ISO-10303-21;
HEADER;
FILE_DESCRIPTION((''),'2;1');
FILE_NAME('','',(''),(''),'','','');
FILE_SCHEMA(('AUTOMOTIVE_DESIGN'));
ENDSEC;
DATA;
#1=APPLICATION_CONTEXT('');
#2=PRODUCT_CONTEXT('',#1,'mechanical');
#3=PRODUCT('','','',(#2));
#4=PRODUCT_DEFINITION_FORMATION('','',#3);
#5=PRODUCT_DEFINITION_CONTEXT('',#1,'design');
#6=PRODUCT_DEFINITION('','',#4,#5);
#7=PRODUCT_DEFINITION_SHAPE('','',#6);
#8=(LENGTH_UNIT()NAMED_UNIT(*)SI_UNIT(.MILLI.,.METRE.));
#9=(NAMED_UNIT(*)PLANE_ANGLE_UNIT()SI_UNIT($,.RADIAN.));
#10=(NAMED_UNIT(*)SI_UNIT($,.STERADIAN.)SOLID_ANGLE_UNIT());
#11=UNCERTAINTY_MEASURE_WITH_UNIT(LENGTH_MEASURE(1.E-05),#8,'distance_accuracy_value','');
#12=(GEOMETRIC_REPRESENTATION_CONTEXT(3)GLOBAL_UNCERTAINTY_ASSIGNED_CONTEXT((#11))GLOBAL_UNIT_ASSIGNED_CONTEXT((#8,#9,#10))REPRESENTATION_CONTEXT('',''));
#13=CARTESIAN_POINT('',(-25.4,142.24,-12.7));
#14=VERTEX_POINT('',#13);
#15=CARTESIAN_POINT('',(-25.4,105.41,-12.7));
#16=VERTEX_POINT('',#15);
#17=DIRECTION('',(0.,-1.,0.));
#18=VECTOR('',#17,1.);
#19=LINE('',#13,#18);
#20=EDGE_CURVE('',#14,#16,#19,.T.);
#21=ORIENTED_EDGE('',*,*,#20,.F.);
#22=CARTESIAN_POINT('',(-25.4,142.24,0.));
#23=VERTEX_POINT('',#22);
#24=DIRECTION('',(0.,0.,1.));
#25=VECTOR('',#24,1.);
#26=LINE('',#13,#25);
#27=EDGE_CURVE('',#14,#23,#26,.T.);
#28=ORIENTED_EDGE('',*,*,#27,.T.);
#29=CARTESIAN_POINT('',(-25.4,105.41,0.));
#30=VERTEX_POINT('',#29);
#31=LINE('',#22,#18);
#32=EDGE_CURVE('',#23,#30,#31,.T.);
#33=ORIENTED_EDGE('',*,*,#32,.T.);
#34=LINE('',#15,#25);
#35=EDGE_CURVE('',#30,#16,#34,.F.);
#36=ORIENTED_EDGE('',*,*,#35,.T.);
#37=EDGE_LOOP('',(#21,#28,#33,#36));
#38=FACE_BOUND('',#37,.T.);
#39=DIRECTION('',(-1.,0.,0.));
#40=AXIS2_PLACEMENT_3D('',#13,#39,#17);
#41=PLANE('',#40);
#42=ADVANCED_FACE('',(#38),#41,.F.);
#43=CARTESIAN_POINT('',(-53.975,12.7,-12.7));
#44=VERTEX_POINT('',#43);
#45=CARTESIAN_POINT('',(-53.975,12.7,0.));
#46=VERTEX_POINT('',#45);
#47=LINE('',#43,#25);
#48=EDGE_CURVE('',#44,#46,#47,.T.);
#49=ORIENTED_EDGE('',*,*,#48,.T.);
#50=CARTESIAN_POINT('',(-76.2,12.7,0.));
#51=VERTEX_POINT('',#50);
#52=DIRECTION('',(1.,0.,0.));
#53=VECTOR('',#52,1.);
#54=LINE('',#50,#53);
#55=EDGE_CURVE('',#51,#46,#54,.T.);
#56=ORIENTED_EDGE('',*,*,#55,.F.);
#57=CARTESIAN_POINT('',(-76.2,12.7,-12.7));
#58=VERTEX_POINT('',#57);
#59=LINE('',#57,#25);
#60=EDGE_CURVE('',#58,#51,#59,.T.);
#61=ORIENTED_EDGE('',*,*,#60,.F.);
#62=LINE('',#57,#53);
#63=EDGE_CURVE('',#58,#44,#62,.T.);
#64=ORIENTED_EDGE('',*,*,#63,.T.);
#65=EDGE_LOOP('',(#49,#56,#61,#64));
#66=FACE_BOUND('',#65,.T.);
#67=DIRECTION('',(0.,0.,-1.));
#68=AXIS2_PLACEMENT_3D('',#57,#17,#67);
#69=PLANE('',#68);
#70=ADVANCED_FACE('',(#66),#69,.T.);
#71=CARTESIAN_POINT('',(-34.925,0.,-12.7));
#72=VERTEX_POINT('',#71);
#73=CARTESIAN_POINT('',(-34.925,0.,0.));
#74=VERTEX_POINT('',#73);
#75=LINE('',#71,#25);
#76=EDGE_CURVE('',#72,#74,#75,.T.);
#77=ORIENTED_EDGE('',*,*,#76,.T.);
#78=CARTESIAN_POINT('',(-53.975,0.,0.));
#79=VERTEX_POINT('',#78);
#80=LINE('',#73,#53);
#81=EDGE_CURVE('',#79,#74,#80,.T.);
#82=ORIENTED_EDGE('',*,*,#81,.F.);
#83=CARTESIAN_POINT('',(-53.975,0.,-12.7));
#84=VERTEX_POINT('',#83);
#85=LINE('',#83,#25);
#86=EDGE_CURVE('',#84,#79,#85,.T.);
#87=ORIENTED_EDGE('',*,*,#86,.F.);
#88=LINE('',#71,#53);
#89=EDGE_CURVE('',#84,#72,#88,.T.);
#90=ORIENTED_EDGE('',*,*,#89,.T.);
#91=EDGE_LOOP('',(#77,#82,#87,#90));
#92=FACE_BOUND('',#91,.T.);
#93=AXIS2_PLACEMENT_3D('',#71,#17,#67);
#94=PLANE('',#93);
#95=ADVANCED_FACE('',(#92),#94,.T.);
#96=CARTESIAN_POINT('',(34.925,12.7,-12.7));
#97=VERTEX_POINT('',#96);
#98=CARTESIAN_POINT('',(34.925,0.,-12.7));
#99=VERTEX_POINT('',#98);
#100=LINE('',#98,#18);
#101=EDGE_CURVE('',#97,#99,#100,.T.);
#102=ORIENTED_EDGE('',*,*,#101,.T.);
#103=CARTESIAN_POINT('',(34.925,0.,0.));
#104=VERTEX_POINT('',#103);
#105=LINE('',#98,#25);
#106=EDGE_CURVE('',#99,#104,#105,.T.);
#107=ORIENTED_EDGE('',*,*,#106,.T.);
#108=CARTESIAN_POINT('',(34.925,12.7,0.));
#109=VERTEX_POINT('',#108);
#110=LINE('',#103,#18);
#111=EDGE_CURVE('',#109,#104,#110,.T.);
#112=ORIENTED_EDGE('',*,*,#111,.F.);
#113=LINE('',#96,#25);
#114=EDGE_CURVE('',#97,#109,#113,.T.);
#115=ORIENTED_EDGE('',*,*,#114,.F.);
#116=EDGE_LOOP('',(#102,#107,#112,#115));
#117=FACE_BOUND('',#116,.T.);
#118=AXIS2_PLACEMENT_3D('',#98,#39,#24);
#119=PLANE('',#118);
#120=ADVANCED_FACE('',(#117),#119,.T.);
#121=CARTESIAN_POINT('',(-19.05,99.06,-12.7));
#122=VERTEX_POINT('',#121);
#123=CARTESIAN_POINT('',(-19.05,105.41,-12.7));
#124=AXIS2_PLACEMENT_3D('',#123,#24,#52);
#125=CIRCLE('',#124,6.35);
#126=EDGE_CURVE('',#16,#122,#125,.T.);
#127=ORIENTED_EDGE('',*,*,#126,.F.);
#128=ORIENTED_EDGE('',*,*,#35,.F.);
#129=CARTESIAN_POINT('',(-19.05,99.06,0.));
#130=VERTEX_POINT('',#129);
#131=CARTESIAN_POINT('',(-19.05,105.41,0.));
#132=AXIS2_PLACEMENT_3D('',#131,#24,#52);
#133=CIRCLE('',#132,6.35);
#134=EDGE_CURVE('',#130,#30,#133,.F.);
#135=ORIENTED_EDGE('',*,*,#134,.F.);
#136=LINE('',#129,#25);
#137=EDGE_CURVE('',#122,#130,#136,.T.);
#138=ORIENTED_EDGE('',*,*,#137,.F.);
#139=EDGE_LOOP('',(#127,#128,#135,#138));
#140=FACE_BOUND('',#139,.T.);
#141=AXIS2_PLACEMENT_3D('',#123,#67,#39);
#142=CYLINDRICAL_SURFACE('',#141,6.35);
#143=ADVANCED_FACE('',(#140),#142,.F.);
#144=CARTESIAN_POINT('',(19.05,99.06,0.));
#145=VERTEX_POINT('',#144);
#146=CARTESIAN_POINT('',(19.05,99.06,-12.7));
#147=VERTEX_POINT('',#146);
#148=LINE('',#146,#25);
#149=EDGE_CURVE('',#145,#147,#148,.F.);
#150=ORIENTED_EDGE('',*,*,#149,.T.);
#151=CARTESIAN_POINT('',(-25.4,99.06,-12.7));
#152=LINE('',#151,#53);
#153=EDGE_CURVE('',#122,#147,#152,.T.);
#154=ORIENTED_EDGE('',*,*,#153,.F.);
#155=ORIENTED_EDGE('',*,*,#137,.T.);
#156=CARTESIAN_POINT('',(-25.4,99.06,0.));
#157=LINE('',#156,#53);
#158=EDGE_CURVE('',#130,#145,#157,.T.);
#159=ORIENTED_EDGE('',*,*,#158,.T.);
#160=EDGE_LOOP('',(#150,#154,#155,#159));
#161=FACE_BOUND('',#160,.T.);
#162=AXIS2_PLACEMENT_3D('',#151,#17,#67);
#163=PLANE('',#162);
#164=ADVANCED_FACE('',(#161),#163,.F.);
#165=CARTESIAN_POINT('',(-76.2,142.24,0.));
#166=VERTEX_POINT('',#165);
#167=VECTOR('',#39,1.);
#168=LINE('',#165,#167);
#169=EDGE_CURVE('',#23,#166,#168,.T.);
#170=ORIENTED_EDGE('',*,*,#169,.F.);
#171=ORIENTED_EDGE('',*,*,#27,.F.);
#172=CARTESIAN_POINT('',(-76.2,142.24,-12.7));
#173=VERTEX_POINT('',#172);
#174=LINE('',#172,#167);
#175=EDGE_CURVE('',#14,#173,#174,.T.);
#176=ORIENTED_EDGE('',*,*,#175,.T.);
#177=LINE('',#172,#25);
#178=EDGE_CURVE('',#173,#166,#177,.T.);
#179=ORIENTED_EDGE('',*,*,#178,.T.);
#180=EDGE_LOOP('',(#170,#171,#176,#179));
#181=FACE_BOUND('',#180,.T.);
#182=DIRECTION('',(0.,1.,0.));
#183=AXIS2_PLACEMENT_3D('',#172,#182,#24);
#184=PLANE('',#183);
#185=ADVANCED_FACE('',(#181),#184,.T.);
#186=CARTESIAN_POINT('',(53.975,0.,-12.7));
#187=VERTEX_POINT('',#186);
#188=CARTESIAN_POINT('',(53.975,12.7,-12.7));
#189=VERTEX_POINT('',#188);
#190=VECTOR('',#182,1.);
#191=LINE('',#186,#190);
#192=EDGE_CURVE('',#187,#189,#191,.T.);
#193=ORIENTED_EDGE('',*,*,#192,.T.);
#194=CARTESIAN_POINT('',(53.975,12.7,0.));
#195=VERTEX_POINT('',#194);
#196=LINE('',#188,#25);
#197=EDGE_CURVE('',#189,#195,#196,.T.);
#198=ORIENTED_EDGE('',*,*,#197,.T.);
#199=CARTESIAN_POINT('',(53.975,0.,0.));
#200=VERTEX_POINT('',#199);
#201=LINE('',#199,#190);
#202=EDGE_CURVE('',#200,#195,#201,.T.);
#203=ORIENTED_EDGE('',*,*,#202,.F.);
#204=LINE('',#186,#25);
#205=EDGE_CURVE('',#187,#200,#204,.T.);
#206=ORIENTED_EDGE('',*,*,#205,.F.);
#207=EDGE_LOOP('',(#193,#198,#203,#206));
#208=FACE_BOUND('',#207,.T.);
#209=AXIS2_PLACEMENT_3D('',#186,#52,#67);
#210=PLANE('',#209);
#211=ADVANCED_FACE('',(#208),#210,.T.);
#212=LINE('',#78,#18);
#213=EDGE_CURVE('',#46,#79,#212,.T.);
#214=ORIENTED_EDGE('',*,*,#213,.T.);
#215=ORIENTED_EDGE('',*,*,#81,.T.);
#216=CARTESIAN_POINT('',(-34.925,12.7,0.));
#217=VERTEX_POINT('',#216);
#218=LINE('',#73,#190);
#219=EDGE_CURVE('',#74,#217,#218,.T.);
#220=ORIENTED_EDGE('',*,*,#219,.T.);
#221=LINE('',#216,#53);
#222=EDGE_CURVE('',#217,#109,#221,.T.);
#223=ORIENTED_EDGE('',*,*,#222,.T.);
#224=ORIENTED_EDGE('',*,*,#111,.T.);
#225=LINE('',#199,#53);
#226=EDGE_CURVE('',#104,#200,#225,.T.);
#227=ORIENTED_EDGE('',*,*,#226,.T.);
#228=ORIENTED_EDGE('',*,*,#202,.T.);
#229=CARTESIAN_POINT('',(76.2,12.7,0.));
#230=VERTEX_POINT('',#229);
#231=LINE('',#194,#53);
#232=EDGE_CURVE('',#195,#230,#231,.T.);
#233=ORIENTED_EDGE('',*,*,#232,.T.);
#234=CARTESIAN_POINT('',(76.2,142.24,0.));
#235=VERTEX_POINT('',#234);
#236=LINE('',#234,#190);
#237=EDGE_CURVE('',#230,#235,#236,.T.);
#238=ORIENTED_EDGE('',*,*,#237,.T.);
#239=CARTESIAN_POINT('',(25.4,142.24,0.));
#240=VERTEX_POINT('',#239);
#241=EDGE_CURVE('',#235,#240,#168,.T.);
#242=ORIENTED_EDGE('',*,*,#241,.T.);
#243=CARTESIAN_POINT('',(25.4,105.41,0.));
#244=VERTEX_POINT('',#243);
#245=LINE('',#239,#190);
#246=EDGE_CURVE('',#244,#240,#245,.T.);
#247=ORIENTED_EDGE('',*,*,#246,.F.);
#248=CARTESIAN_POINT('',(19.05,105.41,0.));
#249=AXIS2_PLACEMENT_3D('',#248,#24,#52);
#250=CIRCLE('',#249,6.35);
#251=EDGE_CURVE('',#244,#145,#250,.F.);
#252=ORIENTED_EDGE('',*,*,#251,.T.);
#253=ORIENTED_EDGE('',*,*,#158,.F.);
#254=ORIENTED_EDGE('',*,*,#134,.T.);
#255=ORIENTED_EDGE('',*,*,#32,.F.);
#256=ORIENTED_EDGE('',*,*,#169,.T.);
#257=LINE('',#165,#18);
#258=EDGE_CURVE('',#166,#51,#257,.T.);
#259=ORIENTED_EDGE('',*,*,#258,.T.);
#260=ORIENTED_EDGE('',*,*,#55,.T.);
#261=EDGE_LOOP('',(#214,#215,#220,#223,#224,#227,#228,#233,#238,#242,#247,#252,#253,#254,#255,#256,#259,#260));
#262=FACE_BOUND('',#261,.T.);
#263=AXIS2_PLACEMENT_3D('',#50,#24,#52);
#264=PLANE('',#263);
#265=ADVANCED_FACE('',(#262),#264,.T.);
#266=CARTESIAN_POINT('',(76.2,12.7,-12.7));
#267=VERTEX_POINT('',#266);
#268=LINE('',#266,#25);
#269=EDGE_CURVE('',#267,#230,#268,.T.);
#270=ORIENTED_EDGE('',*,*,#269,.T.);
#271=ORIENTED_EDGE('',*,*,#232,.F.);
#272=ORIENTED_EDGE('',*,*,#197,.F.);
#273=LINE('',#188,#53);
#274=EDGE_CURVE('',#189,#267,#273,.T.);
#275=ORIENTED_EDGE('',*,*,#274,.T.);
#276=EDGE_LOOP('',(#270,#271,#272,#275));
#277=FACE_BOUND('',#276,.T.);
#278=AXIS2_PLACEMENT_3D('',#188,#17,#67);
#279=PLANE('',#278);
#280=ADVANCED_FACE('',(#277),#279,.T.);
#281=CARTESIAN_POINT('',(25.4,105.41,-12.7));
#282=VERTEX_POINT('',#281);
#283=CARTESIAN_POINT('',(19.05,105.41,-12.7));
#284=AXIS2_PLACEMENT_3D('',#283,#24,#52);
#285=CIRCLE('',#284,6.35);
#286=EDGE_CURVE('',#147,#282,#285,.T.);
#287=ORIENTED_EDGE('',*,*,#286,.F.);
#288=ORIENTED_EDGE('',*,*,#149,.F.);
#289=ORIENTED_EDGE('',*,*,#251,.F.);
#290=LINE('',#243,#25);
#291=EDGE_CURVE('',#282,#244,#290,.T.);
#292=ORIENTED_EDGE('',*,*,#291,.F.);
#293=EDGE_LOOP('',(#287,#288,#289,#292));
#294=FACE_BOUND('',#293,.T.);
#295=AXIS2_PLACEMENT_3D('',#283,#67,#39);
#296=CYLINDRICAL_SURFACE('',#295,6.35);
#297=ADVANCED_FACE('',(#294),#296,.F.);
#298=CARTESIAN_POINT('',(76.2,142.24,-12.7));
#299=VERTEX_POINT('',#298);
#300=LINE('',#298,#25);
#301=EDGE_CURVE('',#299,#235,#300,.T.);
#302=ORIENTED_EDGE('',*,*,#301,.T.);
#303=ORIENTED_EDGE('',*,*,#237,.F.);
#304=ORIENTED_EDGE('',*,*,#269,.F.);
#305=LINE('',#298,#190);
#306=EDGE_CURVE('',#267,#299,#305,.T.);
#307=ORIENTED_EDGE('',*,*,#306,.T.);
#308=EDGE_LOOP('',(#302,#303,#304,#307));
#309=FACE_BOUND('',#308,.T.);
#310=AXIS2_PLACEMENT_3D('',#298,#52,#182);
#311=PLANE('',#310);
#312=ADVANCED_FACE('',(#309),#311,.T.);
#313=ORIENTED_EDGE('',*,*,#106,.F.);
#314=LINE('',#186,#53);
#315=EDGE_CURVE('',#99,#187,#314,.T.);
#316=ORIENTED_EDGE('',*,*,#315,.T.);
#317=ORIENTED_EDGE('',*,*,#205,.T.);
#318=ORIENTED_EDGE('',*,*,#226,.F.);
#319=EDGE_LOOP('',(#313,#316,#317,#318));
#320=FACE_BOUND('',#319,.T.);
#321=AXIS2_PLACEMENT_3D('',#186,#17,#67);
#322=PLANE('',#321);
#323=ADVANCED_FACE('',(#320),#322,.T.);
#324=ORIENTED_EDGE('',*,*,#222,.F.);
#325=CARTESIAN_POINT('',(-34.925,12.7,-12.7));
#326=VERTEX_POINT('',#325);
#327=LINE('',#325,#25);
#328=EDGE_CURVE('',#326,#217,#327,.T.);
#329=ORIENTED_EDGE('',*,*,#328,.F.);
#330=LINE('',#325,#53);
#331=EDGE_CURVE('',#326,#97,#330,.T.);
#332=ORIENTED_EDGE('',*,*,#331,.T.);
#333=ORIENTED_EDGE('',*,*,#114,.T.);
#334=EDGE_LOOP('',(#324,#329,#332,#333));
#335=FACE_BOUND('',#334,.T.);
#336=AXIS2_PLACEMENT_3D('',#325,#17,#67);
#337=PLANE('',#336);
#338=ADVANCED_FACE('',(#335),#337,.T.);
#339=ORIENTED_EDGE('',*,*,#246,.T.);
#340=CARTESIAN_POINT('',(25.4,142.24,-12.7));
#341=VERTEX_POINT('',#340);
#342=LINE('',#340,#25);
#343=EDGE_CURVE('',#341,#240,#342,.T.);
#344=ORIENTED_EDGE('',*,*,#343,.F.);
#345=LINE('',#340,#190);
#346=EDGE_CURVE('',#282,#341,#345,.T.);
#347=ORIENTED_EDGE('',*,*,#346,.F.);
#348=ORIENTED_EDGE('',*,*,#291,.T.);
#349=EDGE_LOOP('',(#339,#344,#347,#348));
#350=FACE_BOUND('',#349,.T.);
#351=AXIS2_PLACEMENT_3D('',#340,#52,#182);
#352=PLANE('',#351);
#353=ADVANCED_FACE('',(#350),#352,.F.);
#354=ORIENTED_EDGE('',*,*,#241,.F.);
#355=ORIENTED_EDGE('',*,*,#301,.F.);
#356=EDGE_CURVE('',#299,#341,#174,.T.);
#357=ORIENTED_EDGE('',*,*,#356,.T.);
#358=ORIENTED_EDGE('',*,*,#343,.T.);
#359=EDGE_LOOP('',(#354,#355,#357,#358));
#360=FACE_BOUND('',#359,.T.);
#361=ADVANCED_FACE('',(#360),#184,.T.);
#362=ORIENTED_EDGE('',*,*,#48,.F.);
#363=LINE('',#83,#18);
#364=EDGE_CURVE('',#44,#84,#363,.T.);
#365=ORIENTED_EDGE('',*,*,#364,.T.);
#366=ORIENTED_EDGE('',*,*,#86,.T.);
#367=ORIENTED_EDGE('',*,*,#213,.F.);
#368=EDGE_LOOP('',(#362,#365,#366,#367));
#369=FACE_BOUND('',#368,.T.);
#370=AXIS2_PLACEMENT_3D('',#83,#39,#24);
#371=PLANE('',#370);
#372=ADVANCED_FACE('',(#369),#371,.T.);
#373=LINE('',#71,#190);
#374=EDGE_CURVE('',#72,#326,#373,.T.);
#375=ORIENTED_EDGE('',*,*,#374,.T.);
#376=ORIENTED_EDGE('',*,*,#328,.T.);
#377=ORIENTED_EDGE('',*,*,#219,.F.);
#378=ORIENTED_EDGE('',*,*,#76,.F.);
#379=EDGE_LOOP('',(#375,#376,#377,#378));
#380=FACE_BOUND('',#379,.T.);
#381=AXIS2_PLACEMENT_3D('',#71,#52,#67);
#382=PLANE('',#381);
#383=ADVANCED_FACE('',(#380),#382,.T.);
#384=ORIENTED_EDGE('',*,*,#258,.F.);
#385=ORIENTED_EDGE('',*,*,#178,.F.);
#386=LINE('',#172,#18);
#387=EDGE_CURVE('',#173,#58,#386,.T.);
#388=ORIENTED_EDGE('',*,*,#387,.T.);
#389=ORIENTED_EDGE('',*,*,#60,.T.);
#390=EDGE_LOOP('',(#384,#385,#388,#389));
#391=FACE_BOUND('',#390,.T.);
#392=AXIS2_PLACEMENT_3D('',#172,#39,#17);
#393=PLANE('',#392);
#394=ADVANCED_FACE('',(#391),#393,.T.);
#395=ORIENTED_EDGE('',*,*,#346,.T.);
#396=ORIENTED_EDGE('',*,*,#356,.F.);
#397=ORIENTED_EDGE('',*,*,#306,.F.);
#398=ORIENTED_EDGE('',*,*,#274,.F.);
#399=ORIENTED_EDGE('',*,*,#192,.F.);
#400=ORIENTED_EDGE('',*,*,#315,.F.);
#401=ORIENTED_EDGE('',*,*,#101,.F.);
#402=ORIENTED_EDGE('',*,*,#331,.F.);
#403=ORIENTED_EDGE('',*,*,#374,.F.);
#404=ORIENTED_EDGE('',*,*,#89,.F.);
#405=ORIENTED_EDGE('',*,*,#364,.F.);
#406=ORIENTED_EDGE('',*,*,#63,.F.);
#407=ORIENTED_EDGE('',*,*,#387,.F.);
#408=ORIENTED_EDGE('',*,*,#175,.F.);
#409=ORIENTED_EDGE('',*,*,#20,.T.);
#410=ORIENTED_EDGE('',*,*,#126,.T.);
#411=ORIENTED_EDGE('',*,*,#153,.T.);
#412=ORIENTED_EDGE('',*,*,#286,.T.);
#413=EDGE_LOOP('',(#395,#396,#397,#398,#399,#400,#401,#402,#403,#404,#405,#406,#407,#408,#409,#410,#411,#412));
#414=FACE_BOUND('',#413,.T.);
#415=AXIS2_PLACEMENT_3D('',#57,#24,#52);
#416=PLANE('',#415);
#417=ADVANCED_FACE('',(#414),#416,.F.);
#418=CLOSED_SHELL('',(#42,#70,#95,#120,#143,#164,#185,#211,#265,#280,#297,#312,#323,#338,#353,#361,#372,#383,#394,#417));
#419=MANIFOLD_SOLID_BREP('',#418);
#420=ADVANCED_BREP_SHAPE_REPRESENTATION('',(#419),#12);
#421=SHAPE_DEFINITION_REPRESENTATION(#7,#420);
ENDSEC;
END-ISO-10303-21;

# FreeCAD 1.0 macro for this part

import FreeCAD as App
import Part
import Sketcher
from FreeCAD import Vector
Q = App.Units.Quantity


def edges_at(feature, points):
    """Names of the edges that pass closest to the given points."""
    edges = feature.Shape.Edges
    near = lambda p: min(range(len(edges)), key=lambda i: edges[i].distToShape(Part.Vertex(*p))[0])
    return sorted({f"Edge{near(p) + 1}" for p in points})

doc = App.newDocument("Part")
body = doc.addObject("PartDesign::Body", "Body")

# Sketch on XY plane
sketch1 = body.newObject("Sketcher::SketchObject", "Sketch")
sketch1.AttachmentSupport = (doc.getObject("XY_Plane"), [""])
sketch1.MapMode = "FlatFace"
sketch1.addGeometry([
    Part.LineSegment(Vector(76.2, 142.24, 0), Vector(-76.2, 142.24, 0)),  # 0
    Part.LineSegment(Vector(-76.2, 142.24, 0), Vector(-76.2, 12.7, 0)),  # 1
    Part.LineSegment(Vector(-76.2, 12.7, 0), Vector(-53.975, 12.7, 0)),  # 2
    Part.LineSegment(Vector(-53.975, 12.7, 0), Vector(-53.975, 0, 0)),  # 3
    Part.LineSegment(Vector(-53.975, 0, 0), Vector(-34.925, 0, 0)),  # 4
    Part.LineSegment(Vector(-34.925, 0, 0), Vector(-34.925, 12.7, 0)),  # 5
    Part.LineSegment(Vector(-34.925, 12.7, 0), Vector(34.925, 12.7, 0)),  # 6
    Part.LineSegment(Vector(34.925, 12.7, 0), Vector(34.925, 0, 0)),  # 7
    Part.LineSegment(Vector(34.925, 0, 0), Vector(53.975, 0, 0)),  # 8
    Part.LineSegment(Vector(53.975, 0, 0), Vector(53.975, 12.7, 0)),  # 9
    Part.LineSegment(Vector(53.975, 12.7, 0), Vector(76.2, 12.7, 0)),  # 10
    Part.LineSegment(Vector(76.2, 12.7, 0), Vector(76.2, 142.24, 0)),  # 11
], False)
sketch1.addConstraint([
    Sketcher.Constraint("Coincident", 0, 2, 1, 1),
    Sketcher.Constraint("Coincident", 1, 2, 2, 1),
    Sketcher.Constraint("Coincident", 2, 2, 3, 1),
    Sketcher.Constraint("Coincident", 3, 2, 4, 1),
    Sketcher.Constraint("Coincident", 4, 2, 5, 1),
    Sketcher.Constraint("Coincident", 5, 2, 6, 1),
    Sketcher.Constraint("Coincident", 6, 2, 7, 1),
    Sketcher.Constraint("Coincident", 7, 2, 8, 1),
    Sketcher.Constraint("Coincident", 8, 2, 9, 1),
    Sketcher.Constraint("Coincident", 9, 2, 10, 1),
    Sketcher.Constraint("Coincident", 10, 2, 11, 1),
    Sketcher.Constraint("Coincident", 11, 2, 0, 1),
    Sketcher.Constraint("Horizontal", 0),
    Sketcher.Constraint("Vertical", 1),
    Sketcher.Constraint("Horizontal", 2),
    Sketcher.Constraint("Vertical", 3),
    Sketcher.Constraint("Horizontal", 4),
    Sketcher.Constraint("Vertical", 5),
    Sketcher.Constraint("Horizontal", 6),
    Sketcher.Constraint("Vertical", 7),
    Sketcher.Constraint("Horizontal", 8),
    Sketcher.Constraint("Vertical", 9),
    Sketcher.Constraint("Horizontal", 10),
    Sketcher.Constraint("Vertical", 11),
    Sketcher.Constraint("Symmetric", 4, 2, 7, 2, -1, 1),
    Sketcher.Constraint("Symmetric", 3, 2, 8, 2, -2),
    Sketcher.Constraint("Symmetric", 1, 2, 10, 2, -2),
    Sketcher.Constraint("Horizontal", 2, 2, 5, 2),
    Sketcher.Constraint("DistanceX", 0, 2, 0, 1, Q("6 in")),
    Sketcher.Constraint("DistanceY", 1, 2, 1, 1, Q("5.1 in")),
    Sketcher.Constraint("DistanceY", 3, 2, 3, 1, Q("0.5 in")),
    Sketcher.Constraint("DistanceX", 4, 1, 4, 2, Q("0.75 in")),
    Sketcher.Constraint("DistanceX", 6, 1, 6, 2, Q("2.75 in")),
])
pad1 = body.newObject("PartDesign::Pad", "Pad")
pad1.Profile = sketch1
pad1.Length = Q("0.5 in")
pad1.Reversed = True

# Sketch on XY plane
sketch2 = body.newObject("Sketcher::SketchObject", "Sketch001")
sketch2.AttachmentSupport = (doc.getObject("XY_Plane"), [""])
sketch2.MapMode = "FlatFace"
sketch2.addGeometry([
    Part.LineSegment(Vector(-25.4, 142.24, 0), Vector(-25.4, 99.06, 0)),
    Part.LineSegment(Vector(-25.4, 99.06, 0), Vector(25.4, 99.06, 0)),
    Part.LineSegment(Vector(25.4, 99.06, 0), Vector(25.4, 142.24, 0)),
    Part.LineSegment(Vector(25.4, 142.24, 0), Vector(-25.4, 142.24, 0)),
], False)
sketch2.addConstraint([
    Sketcher.Constraint("Coincident", 0, 2, 1, 1),
    Sketcher.Constraint("Coincident", 1, 2, 2, 1),
    Sketcher.Constraint("Coincident", 2, 2, 3, 1),
    Sketcher.Constraint("Coincident", 3, 2, 0, 1),
    Sketcher.Constraint("Vertical", 0),
    Sketcher.Constraint("Horizontal", 1),
    Sketcher.Constraint("Vertical", 2),
    Sketcher.Constraint("Horizontal", 3),
    Sketcher.Constraint("DistanceX", 1, 1, 1, 2, Q("2 in")),
    Sketcher.Constraint("DistanceY", 0, 2, 0, 1, Q("1.7 in")),
    Sketcher.Constraint("DistanceX", 0, 2, -1, 1, Q("1 in")),
    Sketcher.Constraint("DistanceY", -1, 1, 0, 2, Q("3.9 in")),
])
pocket1 = body.newObject("PartDesign::Pocket", "Pocket")
pocket1.Profile = sketch2
pocket1.Type = "ThroughAll"
doc.recompute()

fillet = body.newObject("PartDesign::Fillet", "Fillet")
fillet.Base = (pocket1, edges_at(pocket1, [(-25.4, 99.06, -6.35), (25.4, 99.06, -6.35)]))
fillet.Radius = Q("0.25 in")

doc.recompute()
